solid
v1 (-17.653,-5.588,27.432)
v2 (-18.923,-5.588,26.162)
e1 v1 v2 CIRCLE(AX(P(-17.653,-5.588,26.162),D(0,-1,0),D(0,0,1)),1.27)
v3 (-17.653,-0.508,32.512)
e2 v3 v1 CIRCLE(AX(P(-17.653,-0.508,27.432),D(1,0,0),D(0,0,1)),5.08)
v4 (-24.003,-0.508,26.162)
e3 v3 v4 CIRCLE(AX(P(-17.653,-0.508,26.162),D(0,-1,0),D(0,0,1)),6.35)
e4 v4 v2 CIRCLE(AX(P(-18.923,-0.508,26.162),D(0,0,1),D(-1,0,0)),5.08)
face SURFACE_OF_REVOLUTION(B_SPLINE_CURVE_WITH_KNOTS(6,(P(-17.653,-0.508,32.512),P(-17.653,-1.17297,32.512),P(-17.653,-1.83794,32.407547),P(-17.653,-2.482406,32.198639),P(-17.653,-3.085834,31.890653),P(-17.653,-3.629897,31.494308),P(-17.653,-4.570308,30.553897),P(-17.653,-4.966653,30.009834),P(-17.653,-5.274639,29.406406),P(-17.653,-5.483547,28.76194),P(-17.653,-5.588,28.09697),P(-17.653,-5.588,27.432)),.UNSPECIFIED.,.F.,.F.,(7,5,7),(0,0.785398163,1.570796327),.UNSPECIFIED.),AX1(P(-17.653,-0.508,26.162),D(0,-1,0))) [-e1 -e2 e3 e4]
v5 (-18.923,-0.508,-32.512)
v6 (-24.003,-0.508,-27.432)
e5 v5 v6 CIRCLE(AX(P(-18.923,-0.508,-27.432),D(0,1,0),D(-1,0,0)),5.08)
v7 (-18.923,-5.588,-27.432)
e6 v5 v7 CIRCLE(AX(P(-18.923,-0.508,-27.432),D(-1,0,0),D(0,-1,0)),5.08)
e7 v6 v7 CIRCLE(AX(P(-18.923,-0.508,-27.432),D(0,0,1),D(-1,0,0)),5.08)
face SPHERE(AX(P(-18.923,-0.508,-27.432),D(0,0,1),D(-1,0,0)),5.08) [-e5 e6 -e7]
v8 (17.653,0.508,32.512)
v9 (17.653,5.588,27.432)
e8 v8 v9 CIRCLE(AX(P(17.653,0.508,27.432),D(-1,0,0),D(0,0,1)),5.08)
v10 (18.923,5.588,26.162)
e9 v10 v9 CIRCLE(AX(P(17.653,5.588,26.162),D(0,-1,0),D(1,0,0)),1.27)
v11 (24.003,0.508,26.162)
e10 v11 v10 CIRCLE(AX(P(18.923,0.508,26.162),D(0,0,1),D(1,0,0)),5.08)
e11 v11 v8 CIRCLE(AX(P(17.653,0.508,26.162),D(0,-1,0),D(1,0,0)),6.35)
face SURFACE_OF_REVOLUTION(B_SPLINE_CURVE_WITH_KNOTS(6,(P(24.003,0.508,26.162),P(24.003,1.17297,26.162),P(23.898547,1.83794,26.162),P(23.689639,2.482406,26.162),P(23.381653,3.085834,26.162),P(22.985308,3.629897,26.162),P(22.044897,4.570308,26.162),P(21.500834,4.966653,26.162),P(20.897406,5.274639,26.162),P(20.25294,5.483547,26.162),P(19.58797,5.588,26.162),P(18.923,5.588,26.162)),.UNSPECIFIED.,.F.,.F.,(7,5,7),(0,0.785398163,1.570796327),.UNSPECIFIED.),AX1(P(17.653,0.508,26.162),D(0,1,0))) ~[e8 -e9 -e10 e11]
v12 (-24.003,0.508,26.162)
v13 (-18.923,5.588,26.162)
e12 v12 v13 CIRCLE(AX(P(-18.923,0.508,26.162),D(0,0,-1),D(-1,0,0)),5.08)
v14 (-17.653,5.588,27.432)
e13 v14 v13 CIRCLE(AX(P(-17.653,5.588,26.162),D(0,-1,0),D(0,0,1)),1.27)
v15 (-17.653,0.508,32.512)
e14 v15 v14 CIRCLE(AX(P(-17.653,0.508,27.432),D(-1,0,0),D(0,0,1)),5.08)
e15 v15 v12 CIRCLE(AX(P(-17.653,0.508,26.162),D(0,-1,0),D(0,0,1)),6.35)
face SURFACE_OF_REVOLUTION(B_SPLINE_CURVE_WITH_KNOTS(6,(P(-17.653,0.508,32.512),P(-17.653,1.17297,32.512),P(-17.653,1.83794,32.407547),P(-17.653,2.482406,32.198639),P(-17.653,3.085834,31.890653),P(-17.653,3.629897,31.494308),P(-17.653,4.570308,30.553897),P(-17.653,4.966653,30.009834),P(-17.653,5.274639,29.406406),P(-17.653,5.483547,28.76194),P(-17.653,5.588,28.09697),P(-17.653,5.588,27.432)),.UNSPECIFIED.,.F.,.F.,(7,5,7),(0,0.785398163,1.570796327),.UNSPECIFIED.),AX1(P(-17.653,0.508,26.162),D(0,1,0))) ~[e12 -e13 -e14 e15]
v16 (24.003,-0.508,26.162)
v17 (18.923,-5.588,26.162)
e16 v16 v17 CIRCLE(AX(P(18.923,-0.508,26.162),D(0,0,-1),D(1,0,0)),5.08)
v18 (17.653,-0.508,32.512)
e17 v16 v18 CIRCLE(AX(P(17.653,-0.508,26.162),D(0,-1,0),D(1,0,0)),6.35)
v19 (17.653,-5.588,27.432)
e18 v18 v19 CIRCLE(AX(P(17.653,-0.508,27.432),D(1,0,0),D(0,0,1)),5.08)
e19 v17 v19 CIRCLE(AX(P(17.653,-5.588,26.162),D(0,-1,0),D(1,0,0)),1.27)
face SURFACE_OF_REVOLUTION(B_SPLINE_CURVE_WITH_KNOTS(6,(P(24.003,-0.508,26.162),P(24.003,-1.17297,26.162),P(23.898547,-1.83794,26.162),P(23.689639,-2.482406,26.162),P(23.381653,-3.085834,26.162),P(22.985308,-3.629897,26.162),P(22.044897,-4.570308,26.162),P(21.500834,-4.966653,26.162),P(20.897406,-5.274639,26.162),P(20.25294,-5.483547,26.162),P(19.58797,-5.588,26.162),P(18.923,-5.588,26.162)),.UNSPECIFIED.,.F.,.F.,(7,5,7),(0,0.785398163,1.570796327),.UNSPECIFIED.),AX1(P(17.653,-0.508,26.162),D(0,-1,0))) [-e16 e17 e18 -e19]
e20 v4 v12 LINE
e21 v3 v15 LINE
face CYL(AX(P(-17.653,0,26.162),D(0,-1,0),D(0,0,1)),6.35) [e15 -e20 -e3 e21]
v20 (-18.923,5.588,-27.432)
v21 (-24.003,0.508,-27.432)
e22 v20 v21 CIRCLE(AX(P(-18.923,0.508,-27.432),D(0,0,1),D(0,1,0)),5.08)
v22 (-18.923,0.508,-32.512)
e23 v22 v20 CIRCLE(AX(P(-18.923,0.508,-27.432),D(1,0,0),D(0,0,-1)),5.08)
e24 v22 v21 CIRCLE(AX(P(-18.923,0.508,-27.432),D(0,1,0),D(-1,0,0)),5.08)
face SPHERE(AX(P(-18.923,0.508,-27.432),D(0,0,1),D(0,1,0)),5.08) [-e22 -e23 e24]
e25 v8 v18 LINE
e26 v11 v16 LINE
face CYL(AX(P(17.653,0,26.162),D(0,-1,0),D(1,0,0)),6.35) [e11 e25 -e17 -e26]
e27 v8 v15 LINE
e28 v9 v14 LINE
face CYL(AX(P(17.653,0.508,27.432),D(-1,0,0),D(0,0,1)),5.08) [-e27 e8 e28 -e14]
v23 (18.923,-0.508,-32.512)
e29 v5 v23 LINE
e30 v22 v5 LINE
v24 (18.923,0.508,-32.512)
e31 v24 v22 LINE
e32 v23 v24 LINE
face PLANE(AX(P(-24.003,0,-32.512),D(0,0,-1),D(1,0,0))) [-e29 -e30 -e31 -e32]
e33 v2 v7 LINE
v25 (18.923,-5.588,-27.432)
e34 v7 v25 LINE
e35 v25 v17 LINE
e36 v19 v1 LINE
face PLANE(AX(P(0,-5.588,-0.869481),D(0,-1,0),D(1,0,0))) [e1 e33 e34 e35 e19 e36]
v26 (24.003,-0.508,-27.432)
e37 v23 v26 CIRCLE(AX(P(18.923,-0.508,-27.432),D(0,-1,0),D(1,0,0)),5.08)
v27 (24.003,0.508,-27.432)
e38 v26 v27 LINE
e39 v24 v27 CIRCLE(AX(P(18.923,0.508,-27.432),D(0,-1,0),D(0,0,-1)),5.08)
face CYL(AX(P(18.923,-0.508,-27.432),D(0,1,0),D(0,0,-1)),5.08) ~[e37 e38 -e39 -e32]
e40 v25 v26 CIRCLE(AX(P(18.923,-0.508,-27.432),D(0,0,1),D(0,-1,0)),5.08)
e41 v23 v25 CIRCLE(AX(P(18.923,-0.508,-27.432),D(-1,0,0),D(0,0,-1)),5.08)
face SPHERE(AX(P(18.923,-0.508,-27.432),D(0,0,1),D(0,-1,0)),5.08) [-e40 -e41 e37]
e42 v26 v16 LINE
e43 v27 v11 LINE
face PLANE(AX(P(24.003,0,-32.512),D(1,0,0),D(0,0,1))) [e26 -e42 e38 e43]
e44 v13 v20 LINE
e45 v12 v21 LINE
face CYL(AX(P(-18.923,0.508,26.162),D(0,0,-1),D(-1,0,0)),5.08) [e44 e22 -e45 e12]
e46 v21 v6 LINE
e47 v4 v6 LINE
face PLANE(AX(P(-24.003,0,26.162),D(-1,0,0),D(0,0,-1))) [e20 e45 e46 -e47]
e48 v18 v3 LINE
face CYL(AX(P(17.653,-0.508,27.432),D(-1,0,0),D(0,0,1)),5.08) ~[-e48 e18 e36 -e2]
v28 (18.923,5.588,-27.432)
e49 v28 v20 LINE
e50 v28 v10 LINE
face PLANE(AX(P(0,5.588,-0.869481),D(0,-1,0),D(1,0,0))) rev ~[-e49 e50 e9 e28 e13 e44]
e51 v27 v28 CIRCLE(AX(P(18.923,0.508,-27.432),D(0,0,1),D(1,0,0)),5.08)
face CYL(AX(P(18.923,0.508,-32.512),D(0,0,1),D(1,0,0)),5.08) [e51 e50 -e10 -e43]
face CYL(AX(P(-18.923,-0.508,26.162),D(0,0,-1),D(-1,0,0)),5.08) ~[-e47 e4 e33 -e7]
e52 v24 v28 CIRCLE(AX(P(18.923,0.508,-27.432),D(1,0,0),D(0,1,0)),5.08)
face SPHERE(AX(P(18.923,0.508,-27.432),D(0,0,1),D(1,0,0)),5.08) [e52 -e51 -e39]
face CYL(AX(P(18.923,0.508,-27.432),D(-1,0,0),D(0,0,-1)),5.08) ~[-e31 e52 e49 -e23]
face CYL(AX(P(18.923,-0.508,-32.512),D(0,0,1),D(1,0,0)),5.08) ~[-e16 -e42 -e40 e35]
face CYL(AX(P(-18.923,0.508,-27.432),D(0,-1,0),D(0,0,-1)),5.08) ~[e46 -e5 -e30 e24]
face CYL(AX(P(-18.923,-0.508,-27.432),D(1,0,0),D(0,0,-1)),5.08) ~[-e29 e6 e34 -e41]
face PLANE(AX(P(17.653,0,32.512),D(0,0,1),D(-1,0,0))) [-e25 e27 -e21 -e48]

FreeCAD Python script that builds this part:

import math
import FreeCAD as App
import Part
import Sketcher
from FreeCAD import Vector
Q = App.Units.Quantity


def edges_at(feature, points):
    """Names of the edges that pass closest to the given points."""
    edges = feature.Shape.Edges
    near = lambda p: min(range(len(edges)), key=lambda i: edges[i].distToShape(Part.Vertex(*p))[0])
    return sorted({f"Edge{near(p) + 1}" for p in points})

doc = App.newDocument("Part")
body = doc.addObject("PartDesign::Body", "Body")

# Sketch on XZ plane
sketch1 = doc.addObject("Sketcher::SketchObject", "Sketch")
body.addObject(sketch1)
sketch1.AttachmentSupport = (doc.XZ_Plane, [""])
sketch1.MapMode = "FlatFace"
sketch1.addGeometry([
    Part.LineSegment(Vector(-24, -33, 0), Vector(24, -33, 0)),  # 0
    Part.LineSegment(Vector(24, -33, 0), Vector(24, 26, 0)),  # 1
    Part.ArcOfCircle(Part.Circle(Vector(18, 26, 0), Vector(0, 0, 1), 6), math.radians(0), math.radians(90)),  # 2
    Part.LineSegment(Vector(18, 33, 0), Vector(-18, 33, 0)),  # 3
    Part.ArcOfCircle(Part.Circle(Vector(-18, 26, 0), Vector(0, 0, 1), 6), math.radians(90), math.radians(180)),  # 4
    Part.LineSegment(Vector(-24, 26, 0), Vector(-24, -33, 0)),  # 5
], False)
sketch1.addConstraint([
    Sketcher.Constraint("Coincident", 0, 2, 1, 1),
    Sketcher.Constraint("Tangent", 1, 2, 2, 1),
    Sketcher.Constraint("Tangent", 2, 2, 3, 1),
    Sketcher.Constraint("Tangent", 3, 2, 4, 1),
    Sketcher.Constraint("Tangent", 4, 2, 5, 1),
    Sketcher.Constraint("Coincident", 5, 2, 0, 1),
    Sketcher.Constraint("Horizontal", 0),
    Sketcher.Constraint("Vertical", 1),
    Sketcher.Constraint("Horizontal", 3),
    Sketcher.Constraint("Vertical", 5),
    Sketcher.Constraint("Equal", 2, 4),
    Sketcher.Constraint("Radius", 2, Q("0.25 in")),
    Sketcher.Constraint("DistanceX", 0, 1, 0, 2, Q("1.89 in")),
    Sketcher.Constraint("DistanceY", 1, 1, 1, 2, Q("2.31 in")),
    Sketcher.Constraint("DistanceY", -1, 1, 2, 3, Q("1.03 in")),
    Sketcher.Constraint("DistanceX", -1, 1, 2, 3, Q("0.695 in")),
])
pad1 = doc.addObject("PartDesign::Pad", "Pad")
body.addObject(pad1)
pad1.Profile = sketch1
pad1.Length = Q("0.44 in")
pad1.Midplane = True
doc.recompute()

fillet = doc.addObject("PartDesign::Fillet", "Fillet")
body.addObject(fillet)
fillet.Base = (pad1, edges_at(pad1, [
    (-22.143, 5.588, 30.652),
    (-24.003, 0, 26.162),
    (-22.143, -5.588, 30.652),
    (-17.653, 0, 32.512),
]))
fillet.Radius = Q("0.2 in")
doc.recompute()

fillet2 = doc.addObject("PartDesign::Fillet", "Fillet001")
body.addObject(fillet2)
fillet2.Base = (fillet, edges_at(fillet, [(-22.515, -4.1, -32.512), (22.515, -4.1, -32.512)]))
fillet2.Radius = Q("0.2 in")

doc.recompute()
